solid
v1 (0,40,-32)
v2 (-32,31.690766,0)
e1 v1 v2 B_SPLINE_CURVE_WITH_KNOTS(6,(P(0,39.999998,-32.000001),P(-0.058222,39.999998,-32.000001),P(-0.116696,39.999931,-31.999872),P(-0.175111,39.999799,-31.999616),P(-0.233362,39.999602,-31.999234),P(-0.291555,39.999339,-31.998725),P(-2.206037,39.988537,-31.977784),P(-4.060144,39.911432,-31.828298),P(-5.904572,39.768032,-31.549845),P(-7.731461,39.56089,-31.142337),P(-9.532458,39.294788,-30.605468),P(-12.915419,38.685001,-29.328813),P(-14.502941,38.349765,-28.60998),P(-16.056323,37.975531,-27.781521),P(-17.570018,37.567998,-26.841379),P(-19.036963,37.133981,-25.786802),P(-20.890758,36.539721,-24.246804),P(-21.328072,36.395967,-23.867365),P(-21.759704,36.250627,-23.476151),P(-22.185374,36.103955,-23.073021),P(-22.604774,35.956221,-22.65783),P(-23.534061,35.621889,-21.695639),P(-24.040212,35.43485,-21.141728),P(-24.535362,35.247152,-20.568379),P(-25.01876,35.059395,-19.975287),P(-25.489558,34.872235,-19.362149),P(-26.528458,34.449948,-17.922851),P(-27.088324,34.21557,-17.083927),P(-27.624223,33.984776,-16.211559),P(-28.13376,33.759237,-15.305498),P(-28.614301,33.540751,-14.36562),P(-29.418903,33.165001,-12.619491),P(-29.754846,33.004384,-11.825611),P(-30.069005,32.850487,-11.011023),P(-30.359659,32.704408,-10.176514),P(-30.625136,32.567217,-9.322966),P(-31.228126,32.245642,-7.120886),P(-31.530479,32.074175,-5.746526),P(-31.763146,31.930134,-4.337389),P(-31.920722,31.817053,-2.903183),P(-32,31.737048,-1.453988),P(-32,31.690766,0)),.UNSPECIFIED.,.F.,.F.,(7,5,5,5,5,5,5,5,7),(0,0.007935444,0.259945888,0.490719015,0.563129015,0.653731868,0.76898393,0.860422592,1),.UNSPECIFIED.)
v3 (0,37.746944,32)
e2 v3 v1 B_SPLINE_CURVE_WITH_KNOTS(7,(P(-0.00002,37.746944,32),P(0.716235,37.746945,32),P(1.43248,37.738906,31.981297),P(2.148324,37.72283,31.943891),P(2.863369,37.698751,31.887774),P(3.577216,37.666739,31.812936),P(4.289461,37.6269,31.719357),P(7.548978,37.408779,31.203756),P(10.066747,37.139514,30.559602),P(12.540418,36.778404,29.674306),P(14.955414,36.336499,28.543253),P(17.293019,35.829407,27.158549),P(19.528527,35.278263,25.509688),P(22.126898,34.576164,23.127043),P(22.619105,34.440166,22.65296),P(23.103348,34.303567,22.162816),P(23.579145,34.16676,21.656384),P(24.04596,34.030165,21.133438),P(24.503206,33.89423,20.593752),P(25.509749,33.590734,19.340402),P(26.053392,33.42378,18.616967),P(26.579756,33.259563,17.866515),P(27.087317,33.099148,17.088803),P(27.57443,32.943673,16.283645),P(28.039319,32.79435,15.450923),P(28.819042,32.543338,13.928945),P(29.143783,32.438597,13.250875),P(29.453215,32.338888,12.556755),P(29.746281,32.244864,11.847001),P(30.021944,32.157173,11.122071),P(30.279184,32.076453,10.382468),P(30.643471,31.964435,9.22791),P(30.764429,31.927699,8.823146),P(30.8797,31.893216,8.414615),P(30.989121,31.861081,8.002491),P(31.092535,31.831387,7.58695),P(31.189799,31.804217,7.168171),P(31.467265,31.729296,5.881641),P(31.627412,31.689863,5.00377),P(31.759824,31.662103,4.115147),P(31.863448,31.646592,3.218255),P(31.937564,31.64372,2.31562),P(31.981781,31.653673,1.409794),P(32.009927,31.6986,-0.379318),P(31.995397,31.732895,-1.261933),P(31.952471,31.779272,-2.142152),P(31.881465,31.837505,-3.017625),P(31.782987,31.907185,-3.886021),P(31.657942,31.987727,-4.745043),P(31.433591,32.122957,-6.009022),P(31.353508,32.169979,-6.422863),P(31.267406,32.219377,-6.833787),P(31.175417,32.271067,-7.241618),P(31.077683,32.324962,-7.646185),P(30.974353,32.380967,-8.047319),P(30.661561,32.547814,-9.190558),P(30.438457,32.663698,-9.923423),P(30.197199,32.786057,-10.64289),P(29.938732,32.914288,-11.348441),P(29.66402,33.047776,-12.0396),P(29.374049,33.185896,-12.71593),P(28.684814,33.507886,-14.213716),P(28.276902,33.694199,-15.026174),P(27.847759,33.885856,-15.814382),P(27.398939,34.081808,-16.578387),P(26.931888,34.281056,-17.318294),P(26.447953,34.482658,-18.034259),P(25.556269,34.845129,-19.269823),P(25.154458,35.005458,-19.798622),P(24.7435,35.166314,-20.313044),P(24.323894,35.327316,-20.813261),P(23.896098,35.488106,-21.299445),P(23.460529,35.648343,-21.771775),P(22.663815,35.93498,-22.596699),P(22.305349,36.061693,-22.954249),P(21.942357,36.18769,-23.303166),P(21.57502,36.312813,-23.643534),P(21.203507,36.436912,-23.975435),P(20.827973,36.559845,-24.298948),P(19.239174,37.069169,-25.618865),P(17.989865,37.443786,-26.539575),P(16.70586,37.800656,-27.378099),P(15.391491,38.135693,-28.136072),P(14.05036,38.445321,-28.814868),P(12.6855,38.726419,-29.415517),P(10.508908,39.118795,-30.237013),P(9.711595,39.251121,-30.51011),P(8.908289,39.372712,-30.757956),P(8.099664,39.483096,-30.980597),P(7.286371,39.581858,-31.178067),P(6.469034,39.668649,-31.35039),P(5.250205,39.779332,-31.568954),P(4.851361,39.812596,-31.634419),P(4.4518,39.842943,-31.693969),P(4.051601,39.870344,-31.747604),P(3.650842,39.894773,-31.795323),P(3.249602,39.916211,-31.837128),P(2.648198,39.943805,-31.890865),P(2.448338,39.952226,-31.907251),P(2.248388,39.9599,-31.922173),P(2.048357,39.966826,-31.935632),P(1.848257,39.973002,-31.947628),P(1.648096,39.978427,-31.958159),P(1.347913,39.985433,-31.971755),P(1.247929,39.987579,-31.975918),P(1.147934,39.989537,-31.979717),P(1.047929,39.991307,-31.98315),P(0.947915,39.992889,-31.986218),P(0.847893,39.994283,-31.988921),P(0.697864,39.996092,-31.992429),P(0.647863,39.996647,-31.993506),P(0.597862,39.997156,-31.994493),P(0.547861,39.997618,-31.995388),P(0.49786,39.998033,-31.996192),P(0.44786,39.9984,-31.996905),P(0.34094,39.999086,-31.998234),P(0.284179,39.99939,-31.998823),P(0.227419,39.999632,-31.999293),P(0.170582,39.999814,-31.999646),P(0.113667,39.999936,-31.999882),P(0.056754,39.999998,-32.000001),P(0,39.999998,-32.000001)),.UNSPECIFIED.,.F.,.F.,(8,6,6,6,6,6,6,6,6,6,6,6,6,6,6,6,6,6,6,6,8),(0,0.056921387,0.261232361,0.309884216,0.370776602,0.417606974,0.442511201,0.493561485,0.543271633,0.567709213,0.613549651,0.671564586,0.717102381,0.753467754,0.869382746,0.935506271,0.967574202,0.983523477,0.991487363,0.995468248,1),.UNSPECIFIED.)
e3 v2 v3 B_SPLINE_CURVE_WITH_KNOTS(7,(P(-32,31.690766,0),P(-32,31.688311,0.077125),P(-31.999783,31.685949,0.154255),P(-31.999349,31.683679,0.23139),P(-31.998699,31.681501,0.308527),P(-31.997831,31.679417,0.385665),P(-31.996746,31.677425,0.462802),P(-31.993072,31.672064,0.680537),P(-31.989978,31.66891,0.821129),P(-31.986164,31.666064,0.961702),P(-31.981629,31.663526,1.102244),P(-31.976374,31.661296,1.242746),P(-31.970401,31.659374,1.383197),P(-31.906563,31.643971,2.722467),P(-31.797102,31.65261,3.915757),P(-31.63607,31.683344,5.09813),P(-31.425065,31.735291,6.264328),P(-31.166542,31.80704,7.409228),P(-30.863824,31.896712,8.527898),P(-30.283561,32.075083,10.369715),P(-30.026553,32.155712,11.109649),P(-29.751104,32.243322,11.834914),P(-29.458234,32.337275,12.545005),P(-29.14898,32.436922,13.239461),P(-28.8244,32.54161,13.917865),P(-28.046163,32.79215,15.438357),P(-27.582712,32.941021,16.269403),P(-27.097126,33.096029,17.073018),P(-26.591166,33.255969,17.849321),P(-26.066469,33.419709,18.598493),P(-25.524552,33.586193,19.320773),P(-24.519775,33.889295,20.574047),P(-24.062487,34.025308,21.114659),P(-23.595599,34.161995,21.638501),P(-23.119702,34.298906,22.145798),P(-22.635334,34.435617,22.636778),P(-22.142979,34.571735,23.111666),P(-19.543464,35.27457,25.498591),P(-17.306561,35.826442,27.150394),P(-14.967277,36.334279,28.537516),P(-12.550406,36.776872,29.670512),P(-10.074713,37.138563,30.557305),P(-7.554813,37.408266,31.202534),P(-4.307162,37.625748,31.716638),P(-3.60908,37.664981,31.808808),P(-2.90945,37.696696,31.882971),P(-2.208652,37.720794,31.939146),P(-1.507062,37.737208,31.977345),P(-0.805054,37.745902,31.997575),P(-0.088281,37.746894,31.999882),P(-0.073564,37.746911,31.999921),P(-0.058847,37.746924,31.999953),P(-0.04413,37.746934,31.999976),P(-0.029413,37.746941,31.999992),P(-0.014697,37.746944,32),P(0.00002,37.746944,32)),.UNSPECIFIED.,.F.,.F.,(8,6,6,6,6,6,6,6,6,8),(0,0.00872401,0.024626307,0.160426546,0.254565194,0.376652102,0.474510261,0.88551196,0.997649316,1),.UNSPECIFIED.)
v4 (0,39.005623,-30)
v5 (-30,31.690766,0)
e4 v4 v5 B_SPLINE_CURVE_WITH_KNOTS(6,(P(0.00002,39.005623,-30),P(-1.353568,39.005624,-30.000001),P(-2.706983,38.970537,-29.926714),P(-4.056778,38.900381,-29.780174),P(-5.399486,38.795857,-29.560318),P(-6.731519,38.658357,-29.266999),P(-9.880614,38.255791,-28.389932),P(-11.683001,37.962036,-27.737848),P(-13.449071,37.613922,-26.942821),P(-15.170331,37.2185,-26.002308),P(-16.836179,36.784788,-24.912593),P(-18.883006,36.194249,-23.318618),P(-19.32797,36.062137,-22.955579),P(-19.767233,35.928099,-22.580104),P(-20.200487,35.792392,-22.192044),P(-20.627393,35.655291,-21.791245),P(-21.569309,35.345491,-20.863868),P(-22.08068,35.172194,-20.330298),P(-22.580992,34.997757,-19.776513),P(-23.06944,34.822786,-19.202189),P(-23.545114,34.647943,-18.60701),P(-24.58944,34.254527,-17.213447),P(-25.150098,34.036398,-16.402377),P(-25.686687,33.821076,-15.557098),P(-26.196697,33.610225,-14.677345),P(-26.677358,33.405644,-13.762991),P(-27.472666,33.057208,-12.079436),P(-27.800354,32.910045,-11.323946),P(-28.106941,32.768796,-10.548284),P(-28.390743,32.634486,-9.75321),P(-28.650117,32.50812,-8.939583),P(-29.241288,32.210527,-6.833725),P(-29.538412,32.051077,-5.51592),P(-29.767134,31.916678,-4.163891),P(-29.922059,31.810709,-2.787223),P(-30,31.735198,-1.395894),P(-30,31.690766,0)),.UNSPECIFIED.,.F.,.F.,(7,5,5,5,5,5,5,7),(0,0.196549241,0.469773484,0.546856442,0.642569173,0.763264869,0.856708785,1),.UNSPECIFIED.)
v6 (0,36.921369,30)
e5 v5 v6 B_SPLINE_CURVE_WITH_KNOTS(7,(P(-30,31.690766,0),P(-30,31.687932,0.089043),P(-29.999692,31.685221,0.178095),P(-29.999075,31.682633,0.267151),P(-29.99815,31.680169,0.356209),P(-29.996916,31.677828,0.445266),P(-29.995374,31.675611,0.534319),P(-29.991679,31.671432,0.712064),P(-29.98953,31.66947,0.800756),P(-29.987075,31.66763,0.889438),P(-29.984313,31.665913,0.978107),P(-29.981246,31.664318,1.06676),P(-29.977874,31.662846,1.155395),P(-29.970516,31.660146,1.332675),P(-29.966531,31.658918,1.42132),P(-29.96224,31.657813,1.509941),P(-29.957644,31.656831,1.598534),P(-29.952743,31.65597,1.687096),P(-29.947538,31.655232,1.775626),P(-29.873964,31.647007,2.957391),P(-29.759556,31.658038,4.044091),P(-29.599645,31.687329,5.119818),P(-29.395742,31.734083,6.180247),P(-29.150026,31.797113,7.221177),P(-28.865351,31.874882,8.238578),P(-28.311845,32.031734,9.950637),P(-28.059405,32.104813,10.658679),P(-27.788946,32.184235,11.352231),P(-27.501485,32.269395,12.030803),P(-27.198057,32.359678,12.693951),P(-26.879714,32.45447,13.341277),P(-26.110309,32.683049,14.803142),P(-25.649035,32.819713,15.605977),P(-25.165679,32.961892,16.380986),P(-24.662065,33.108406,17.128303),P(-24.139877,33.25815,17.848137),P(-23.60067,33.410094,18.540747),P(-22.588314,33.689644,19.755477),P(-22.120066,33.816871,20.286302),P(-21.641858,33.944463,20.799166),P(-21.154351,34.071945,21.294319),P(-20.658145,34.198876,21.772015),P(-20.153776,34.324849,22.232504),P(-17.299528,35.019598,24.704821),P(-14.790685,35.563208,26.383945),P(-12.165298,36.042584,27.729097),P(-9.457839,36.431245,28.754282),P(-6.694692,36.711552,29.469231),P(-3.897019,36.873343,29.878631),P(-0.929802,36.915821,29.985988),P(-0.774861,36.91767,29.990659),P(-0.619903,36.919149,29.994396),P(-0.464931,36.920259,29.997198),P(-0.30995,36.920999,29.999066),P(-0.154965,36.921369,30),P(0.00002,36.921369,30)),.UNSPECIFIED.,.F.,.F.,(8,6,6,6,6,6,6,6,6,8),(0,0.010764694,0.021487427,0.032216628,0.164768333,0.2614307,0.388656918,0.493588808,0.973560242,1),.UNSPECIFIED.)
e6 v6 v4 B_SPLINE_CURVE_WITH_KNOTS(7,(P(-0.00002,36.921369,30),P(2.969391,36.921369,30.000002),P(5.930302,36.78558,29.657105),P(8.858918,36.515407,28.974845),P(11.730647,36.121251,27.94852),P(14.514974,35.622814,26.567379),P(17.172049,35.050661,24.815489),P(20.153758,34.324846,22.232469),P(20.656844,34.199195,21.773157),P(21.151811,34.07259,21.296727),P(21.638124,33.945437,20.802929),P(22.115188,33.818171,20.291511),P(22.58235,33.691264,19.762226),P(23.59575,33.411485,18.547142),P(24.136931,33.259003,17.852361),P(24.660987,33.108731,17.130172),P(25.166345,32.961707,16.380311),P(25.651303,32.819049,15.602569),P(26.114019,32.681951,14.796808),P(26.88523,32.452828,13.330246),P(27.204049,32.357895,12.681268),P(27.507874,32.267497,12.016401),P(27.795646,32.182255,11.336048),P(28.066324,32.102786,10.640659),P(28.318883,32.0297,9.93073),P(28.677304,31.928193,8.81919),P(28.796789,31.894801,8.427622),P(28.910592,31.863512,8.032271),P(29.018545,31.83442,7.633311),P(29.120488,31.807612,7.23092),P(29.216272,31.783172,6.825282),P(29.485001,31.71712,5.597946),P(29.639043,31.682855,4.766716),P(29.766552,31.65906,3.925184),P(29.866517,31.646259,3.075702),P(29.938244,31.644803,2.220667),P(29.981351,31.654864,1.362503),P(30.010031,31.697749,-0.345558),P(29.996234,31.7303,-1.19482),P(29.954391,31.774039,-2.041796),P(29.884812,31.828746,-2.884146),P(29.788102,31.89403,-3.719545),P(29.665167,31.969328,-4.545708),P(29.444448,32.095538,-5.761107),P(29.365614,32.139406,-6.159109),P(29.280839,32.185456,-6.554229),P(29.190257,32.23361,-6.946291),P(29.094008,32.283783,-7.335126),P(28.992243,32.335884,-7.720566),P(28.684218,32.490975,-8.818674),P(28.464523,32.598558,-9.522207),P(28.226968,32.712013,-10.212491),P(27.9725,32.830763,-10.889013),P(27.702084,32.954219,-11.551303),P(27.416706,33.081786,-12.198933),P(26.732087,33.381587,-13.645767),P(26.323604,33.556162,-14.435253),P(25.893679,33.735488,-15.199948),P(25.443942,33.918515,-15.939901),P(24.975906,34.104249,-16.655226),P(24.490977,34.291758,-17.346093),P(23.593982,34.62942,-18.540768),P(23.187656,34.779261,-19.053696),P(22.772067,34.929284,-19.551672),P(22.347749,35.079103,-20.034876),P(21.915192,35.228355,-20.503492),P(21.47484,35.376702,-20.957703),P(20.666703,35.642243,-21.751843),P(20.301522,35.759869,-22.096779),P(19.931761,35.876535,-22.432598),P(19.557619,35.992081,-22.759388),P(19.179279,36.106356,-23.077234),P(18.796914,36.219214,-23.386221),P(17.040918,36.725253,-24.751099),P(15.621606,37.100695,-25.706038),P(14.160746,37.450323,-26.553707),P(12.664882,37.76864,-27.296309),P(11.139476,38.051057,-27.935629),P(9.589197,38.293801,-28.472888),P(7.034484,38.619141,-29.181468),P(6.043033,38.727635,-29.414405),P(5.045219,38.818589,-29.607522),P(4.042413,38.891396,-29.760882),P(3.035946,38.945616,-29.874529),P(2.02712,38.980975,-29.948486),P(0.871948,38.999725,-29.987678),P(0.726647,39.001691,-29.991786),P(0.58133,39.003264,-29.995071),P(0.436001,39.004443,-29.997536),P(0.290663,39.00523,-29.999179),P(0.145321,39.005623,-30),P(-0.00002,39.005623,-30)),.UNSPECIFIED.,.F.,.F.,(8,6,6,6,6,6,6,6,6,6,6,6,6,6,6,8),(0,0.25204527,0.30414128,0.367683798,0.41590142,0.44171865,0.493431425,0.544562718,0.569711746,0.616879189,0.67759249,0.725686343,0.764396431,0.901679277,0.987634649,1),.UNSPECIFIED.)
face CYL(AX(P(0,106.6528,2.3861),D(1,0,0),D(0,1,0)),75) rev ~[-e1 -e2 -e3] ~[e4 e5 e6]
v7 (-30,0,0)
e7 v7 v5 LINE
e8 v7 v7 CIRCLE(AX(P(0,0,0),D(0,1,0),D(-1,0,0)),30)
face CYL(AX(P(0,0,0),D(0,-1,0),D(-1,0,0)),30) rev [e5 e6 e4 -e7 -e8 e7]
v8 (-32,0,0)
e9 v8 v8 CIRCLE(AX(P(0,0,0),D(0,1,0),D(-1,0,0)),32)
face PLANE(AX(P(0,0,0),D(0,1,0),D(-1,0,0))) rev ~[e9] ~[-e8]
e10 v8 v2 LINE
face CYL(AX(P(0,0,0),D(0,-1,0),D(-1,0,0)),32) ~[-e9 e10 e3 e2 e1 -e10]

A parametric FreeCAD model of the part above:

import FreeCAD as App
import Part
import Sketcher
Q = App.Units.Quantity

doc = App.newDocument("Part")
body = doc.addObject("PartDesign::Body", "Body")

# Sketch on XZ plane
sketch1 = body.newObject("Sketcher::SketchObject", "Sketch")
sketch1.AttachmentSupport = (doc.getObject("XZ_Plane"), [""])
sketch1.MapMode = "FlatFace"
sketch1.addGeometry(Part.Circle(App.Vector(0, 0, 0), App.Vector(0, 0, 1), 32), False)
sketch1.addGeometry(Part.Circle(App.Vector(0, 0, 0), App.Vector(0, 0, 1), 30), False)
sketch1.addConstraint(Sketcher.Constraint("Coincident", 0, 3, -1, 1))
sketch1.addConstraint(Sketcher.Constraint("Coincident", 1, 3, -1, 1))
sketch1.addConstraint(Sketcher.Constraint("Diameter", 0, Q("64 mm")))
sketch1.addConstraint(Sketcher.Constraint("Diameter", 1, Q("60 mm")))
pad1 = body.newObject("PartDesign::Pad", "Pad")
pad1.Profile = sketch1
pad1.Length = 40
pad1.Reversed = True

# Sketch on YZ plane
sketch2 = body.newObject("Sketcher::SketchObject", "Sketch001")
sketch2.AttachmentSupport = (doc.getObject("YZ_Plane"), [""])
sketch2.MapMode = "FlatFace"
sketch2.addGeometry(Part.Circle(App.Vector(107, 2, 0), App.Vector(0, 0, 1), 75), False)
sketch2.addConstraint(Sketcher.Constraint("Diameter", 0, Q("150 mm")))
sketch2.addConstraint(Sketcher.Constraint("DistanceY", -1, 1, 0, 3, Q("2.386 mm")))
sketch2.addConstraint(Sketcher.Constraint("DistanceX", -1, 1, 0, 3, Q("106.6528 mm")))
pocket1 = body.newObject("PartDesign::Pocket", "Pocket")
pocket1.Profile = sketch2
pocket1.Type = "ThroughAll"
pocket1.Midplane = True

doc.recompute()
